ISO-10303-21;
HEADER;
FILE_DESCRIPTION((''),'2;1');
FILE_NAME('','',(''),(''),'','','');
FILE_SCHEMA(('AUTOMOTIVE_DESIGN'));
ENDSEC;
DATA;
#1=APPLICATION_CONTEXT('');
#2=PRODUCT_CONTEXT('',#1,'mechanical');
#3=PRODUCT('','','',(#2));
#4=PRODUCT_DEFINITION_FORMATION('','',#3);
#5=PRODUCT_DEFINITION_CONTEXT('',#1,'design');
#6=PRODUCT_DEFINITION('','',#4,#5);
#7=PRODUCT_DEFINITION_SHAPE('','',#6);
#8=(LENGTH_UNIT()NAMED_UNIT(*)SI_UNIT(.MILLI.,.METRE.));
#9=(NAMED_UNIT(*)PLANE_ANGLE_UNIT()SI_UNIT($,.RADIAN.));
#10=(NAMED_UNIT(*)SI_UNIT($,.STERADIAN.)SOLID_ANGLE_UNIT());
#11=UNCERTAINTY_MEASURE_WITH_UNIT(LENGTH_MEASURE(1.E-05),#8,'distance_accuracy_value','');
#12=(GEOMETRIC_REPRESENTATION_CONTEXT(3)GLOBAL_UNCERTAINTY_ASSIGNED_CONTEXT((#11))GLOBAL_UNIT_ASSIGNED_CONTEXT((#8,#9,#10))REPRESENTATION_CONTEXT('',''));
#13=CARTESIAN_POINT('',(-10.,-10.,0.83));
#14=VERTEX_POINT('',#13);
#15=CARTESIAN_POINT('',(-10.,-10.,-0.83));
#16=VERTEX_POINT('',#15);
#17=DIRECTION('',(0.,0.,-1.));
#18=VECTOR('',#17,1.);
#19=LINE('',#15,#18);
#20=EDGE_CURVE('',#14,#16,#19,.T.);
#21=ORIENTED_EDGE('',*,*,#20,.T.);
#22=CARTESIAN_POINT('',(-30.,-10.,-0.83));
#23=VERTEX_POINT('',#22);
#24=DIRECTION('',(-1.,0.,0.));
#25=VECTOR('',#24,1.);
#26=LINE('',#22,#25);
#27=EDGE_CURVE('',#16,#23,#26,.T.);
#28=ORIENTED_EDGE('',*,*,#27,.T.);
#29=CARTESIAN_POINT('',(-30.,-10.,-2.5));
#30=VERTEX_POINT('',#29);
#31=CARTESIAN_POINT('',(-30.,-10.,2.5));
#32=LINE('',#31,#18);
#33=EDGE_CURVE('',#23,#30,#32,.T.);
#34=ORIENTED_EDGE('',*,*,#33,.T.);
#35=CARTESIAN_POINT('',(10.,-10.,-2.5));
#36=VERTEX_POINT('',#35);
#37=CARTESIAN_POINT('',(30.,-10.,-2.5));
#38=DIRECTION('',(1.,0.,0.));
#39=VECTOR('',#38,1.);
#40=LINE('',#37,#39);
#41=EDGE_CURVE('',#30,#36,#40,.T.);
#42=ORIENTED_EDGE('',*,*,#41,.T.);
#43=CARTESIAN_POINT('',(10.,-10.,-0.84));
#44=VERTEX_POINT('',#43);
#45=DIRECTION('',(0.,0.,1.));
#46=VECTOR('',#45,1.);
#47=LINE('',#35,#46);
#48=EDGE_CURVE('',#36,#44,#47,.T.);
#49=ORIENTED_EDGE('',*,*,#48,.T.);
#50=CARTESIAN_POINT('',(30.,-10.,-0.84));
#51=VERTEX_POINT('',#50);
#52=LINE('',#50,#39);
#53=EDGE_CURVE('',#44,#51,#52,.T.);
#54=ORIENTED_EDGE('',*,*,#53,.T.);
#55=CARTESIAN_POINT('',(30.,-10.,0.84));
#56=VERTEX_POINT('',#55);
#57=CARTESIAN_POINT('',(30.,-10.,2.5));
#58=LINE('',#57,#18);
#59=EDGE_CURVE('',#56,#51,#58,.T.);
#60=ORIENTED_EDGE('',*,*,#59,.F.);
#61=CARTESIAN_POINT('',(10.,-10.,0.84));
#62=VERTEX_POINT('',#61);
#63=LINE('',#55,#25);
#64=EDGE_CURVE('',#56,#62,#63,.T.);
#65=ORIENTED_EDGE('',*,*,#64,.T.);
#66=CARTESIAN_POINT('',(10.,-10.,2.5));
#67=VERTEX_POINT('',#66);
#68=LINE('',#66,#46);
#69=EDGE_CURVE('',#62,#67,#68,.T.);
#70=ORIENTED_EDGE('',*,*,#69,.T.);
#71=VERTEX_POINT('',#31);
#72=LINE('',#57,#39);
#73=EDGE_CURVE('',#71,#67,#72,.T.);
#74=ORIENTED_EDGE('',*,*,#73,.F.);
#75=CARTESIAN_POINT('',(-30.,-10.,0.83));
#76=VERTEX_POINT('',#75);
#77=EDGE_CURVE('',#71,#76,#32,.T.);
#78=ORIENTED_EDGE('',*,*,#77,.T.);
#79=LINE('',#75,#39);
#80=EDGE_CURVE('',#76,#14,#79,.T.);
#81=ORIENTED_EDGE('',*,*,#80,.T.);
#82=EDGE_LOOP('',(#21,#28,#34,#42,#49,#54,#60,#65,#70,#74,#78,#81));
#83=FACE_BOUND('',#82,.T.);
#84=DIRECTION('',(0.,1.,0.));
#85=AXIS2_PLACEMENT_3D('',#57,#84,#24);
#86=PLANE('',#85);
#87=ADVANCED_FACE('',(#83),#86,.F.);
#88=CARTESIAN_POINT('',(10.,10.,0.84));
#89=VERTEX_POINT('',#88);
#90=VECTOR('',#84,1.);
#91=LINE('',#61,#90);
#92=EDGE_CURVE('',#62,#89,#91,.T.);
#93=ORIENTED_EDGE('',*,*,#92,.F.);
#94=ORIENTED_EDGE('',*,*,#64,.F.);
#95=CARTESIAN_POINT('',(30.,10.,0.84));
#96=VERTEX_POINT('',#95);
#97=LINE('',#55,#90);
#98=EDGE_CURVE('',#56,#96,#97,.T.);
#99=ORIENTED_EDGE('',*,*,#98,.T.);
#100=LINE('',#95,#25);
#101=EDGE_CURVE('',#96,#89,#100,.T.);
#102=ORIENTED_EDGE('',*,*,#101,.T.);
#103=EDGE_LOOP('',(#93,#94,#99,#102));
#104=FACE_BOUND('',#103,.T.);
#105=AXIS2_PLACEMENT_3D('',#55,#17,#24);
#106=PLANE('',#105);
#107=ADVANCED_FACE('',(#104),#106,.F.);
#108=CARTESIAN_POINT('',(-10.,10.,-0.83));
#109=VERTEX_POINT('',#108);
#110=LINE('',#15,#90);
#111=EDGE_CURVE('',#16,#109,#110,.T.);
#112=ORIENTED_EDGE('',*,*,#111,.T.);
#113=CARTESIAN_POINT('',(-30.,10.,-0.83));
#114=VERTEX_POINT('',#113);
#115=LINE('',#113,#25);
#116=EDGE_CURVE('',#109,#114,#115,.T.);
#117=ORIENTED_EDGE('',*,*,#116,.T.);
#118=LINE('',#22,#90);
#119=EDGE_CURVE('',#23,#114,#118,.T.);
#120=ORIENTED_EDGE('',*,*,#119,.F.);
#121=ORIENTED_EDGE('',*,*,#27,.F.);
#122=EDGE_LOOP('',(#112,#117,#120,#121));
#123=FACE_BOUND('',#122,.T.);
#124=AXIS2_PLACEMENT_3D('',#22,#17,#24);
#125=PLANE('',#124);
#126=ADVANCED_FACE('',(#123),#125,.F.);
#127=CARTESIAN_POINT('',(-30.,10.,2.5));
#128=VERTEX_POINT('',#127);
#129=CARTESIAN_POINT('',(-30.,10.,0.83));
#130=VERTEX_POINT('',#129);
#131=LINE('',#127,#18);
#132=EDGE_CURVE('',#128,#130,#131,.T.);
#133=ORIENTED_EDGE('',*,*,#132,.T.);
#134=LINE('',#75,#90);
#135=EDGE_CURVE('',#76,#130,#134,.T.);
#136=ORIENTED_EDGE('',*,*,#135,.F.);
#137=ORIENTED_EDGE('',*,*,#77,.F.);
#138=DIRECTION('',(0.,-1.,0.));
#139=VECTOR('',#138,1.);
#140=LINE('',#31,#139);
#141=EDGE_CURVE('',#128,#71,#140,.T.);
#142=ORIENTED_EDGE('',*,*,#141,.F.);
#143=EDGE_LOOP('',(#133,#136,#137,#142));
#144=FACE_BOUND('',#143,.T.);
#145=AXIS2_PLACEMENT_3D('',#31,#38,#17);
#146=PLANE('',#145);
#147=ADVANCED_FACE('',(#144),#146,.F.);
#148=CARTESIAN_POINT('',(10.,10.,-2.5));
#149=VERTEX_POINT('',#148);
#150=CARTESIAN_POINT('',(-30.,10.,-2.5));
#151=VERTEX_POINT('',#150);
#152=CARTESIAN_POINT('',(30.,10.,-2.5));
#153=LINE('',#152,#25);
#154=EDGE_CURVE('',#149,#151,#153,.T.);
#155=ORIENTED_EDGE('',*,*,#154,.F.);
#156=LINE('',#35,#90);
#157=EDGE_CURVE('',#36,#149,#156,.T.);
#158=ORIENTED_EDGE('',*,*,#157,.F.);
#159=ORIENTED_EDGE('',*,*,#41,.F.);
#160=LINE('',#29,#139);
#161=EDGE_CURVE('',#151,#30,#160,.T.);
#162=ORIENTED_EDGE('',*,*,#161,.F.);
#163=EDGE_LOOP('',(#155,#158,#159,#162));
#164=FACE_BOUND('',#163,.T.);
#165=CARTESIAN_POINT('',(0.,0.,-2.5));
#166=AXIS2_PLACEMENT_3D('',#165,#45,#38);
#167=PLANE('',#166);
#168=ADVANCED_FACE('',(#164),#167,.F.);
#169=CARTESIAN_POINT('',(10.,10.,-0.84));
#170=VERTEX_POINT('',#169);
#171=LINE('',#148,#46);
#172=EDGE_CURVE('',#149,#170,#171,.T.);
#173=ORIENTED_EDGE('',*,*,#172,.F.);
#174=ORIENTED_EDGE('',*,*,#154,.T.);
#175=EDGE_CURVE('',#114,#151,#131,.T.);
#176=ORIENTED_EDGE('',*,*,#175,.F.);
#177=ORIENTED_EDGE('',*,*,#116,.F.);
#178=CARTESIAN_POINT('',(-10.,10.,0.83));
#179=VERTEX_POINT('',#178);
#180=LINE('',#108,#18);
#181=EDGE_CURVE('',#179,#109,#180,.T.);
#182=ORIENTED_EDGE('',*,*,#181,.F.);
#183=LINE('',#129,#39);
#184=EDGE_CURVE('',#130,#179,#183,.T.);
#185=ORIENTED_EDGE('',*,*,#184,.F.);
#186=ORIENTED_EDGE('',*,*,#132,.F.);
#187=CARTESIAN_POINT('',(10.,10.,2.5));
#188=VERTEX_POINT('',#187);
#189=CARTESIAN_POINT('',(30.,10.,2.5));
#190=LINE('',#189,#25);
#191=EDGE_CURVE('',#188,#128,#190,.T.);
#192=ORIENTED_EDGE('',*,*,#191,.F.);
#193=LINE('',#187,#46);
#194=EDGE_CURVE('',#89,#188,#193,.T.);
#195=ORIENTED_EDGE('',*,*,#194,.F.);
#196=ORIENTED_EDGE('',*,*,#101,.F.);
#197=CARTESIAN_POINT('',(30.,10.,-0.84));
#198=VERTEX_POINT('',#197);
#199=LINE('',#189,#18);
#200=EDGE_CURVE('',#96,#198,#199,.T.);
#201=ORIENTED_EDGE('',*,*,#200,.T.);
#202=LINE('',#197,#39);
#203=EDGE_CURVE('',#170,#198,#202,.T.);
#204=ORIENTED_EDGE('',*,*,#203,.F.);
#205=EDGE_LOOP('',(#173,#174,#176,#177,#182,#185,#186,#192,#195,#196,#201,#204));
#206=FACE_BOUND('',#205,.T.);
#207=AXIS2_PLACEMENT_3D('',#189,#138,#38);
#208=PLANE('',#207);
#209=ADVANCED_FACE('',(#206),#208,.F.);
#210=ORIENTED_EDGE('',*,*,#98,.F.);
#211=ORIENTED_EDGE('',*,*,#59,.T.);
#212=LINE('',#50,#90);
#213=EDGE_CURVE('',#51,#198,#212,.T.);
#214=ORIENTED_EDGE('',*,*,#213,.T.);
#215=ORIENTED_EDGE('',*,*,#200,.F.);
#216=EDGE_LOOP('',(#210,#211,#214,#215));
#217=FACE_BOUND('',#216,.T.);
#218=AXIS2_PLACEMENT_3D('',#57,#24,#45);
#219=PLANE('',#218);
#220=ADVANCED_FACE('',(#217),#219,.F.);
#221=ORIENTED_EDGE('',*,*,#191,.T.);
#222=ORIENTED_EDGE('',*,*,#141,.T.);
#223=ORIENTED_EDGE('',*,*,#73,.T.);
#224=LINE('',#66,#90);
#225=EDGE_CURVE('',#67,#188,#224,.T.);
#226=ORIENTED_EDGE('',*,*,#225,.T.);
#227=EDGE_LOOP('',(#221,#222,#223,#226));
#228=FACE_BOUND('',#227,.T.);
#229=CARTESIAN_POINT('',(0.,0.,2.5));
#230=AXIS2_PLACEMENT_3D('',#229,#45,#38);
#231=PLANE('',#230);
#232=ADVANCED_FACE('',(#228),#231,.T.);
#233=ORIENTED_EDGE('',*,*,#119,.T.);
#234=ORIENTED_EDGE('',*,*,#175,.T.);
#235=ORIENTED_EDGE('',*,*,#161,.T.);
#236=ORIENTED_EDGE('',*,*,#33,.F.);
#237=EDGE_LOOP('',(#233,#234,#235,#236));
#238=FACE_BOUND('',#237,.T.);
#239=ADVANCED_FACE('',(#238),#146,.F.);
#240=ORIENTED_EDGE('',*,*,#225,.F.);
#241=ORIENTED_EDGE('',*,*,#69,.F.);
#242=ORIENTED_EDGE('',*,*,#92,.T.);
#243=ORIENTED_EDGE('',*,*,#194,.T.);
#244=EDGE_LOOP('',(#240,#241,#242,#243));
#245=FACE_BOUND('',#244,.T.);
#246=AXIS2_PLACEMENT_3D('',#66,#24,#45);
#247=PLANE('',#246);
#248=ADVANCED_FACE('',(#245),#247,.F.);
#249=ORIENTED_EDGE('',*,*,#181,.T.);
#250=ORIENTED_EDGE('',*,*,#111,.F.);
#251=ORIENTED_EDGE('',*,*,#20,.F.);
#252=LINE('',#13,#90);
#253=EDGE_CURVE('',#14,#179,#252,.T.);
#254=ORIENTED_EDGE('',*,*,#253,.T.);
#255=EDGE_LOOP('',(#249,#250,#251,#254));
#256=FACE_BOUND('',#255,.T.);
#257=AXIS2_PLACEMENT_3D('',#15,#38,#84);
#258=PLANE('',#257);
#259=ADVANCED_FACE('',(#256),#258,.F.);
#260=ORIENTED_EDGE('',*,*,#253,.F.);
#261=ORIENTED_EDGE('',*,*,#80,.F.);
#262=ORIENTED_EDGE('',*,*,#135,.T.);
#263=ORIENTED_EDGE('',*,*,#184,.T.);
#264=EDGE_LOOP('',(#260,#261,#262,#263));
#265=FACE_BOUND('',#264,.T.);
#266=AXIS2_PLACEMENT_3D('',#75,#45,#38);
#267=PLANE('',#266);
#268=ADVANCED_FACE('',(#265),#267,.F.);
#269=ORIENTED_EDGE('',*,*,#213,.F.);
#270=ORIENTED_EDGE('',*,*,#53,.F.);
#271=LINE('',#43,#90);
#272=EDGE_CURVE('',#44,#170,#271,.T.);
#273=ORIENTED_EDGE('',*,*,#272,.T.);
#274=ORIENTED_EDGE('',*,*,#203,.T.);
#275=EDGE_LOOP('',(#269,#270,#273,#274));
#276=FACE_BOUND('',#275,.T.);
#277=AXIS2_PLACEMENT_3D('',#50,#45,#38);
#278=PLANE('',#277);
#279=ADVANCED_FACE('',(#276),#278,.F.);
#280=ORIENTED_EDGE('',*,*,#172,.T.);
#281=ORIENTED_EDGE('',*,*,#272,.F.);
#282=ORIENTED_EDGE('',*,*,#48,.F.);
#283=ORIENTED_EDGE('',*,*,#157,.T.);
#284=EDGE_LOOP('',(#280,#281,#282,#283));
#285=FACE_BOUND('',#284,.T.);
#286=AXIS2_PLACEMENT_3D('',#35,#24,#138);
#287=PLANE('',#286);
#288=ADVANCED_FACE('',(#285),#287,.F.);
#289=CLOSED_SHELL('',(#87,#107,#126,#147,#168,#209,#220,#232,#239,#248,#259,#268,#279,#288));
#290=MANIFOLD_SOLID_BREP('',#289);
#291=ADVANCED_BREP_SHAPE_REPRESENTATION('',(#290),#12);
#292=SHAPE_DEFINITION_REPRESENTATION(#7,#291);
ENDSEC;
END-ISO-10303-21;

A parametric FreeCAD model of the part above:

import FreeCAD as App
import Part
import Sketcher
Q = App.Units.Quantity

doc = App.newDocument("Part")
body = doc.addObject("PartDesign::Body", "Body")

# Sketch on XY plane
sketch1 = body.newObject("Sketcher::SketchObject", "Sketch")
sketch1.AttachmentSupport = (doc.getObject("XY_Plane"), [""])
sketch1.MapMode = "FlatFace"
sketch1.addGeometry(Part.LineSegment(App.Vector(-30, 10, 0), App.Vector(-30, -10, 0)), False)
sketch1.addGeometry(Part.LineSegment(App.Vector(-30, -10, 0), App.Vector(30, -10, 0)), False)
sketch1.addGeometry(Part.LineSegment(App.Vector(30, -10, 0), App.Vector(30, 10, 0)), False)
sketch1.addGeometry(Part.LineSegment(App.Vector(30, 10, 0), App.Vector(-30, 10, 0)), False)
sketch1.addConstraint(Sketcher.Constraint("Coincident", 0, 2, 1, 1))
sketch1.addConstraint(Sketcher.Constraint("Coincident", 1, 2, 2, 1))
sketch1.addConstraint(Sketcher.Constraint("Coincident", 2, 2, 3, 1))
sketch1.addConstraint(Sketcher.Constraint("Coincident", 3, 2, 0, 1))
sketch1.addConstraint(Sketcher.Constraint("Vertical", 0))
sketch1.addConstraint(Sketcher.Constraint("Horizontal", 1))
sketch1.addConstraint(Sketcher.Constraint("Vertical", 2))
sketch1.addConstraint(Sketcher.Constraint("Horizontal", 3))
sketch1.addConstraint(Sketcher.Constraint("Symmetric", 0, 2, 2, 2, -1, 1))
sketch1.addConstraint(Sketcher.Constraint("DistanceX", 1, 1, 1, 2, Q("60 mm")))
sketch1.addConstraint(Sketcher.Constraint("DistanceY", 0, 2, 0, 1, Q("20 mm")))
pad1 = body.newObject("PartDesign::Pad", "Pad")
pad1.Profile = sketch1
pad1.Length = 5
pad1.Midplane = True

# Sketch on XZ plane
sketch2 = body.newObject("Sketcher::SketchObject", "Sketch001")
sketch2.AttachmentSupport = (doc.getObject("XZ_Plane"), [""])
sketch2.MapMode = "FlatFace"
sketch2.AttachmentOffset = App.Placement(App.Vector(0, 0, -10), App.Rotation())
sketch2.addGeometry(Part.LineSegment(App.Vector(-30, -0.8, 0), App.Vector(-30, 0.8, 0)), False)
sketch2.addGeometry(Part.LineSegment(App.Vector(-30, 0.8, 0), App.Vector(-10, 0.8, 0)), False)
sketch2.addGeometry(Part.LineSegment(App.Vector(-10, 0.8, 0), App.Vector(-10, -0.8, 0)), False)
sketch2.addGeometry(Part.LineSegment(App.Vector(-10, -0.8, 0), App.Vector(-30, -0.8, 0)), False)
sketch2.addGeometry(Part.LineSegment(App.Vector(10, -2.5, 0), App.Vector(10, -0.8, 0)), False)
sketch2.addGeometry(Part.LineSegment(App.Vector(10, -0.8, 0), App.Vector(30, -0.8, 0)), False)
sketch2.addGeometry(Part.LineSegment(App.Vector(30, -0.8, 0), App.Vector(30, -2.5, 0)), False)
sketch2.addGeometry(Part.LineSegment(App.Vector(30, -2.5, 0), App.Vector(10, -2.5, 0)), False)
sketch2.addGeometry(Part.LineSegment(App.Vector(10, 0.8, 0), App.Vector(10, 2.5, 0)), False)
sketch2.addGeometry(Part.LineSegment(App.Vector(10, 2.5, 0), App.Vector(30, 2.5, 0)), False)
sketch2.addGeometry(Part.LineSegment(App.Vector(30, 2.5, 0), App.Vector(30, 0.8, 0)), False)
sketch2.addGeometry(Part.LineSegment(App.Vector(30, 0.8, 0), App.Vector(10, 0.8, 0)), False)
sketch2.addConstraint(Sketcher.Constraint("Coincident", 0, 2, 1, 1))
sketch2.addConstraint(Sketcher.Constraint("Coincident", 1, 2, 2, 1))
sketch2.addConstraint(Sketcher.Constraint("Coincident", 2, 2, 3, 1))
sketch2.addConstraint(Sketcher.Constraint("Coincident", 3, 2, 0, 1))
sketch2.addConstraint(Sketcher.Constraint("Coincident", 4, 2, 5, 1))
sketch2.addConstraint(Sketcher.Constraint("Coincident", 5, 2, 6, 1))
sketch2.addConstraint(Sketcher.Constraint("Coincident", 6, 2, 7, 1))
sketch2.addConstraint(Sketcher.Constraint("Coincident", 7, 2, 4, 1))
sketch2.addConstraint(Sketcher.Constraint("Coincident", 8, 2, 9, 1))
sketch2.addConstraint(Sketcher.Constraint("Coincident", 9, 2, 10, 1))
sketch2.addConstraint(Sketcher.Constraint("Coincident", 10, 2, 11, 1))
sketch2.addConstraint(Sketcher.Constraint("Coincident", 11, 2, 8, 1))
sketch2.addConstraint(Sketcher.Constraint("Vertical", 0))
sketch2.addConstraint(Sketcher.Constraint("Horizontal", 1))
sketch2.addConstraint(Sketcher.Constraint("Vertical", 2))
sketch2.addConstraint(Sketcher.Constraint("Horizontal", 3))
sketch2.addConstraint(Sketcher.Constraint("Vertical", 4))
sketch2.addConstraint(Sketcher.Constraint("Horizontal", 5))
sketch2.addConstraint(Sketcher.Constraint("Vertical", 6))
sketch2.addConstraint(Sketcher.Constraint("Horizontal", 7))
sketch2.addConstraint(Sketcher.Constraint("Vertical", 8))
sketch2.addConstraint(Sketcher.Constraint("Horizontal", 9))
sketch2.addConstraint(Sketcher.Constraint("Vertical", 10))
sketch2.addConstraint(Sketcher.Constraint("Horizontal", 11))
sketch2.addConstraint(Sketcher.Constraint("Symmetric", 7, 2, 8, 2, -1))
sketch2.addConstraint(Sketcher.Constraint("Symmetric", 5, 2, 10, 2, -1))
sketch2.addConstraint(Sketcher.Constraint("Equal", 3, 5))
sketch2.addConstraint(Sketcher.Constraint("Equal", 2, 4))
sketch2.addConstraint(Sketcher.Constraint("DistanceX", 1, 1, 1, 2, Q("20 mm")))
sketch2.addConstraint(Sketcher.Constraint("DistanceX", 0, 2, -1, 1, Q("30 mm")))
sketch2.addConstraint(Sketcher.Constraint("DistanceX", -1, 1, 4, 2, Q("10 mm")))
sketch2.addConstraint(Sketcher.Constraint("DistanceY", 7, 2, 8, 2, Q("5 mm")))
sketch2.addConstraint(Sketcher.Constraint("DistanceY", 0, 1, 0, 2, Q("1.66 mm")))
sketch2.addConstraint(Sketcher.Constraint("DistanceY", -1, 1, 0, 2, Q("0.83 mm")))
pocket1 = body.newObject("PartDesign::Pocket", "Pocket")
pocket1.Profile = sketch2
pocket1.Type = "ThroughAll"
pocket1.Reversed = True

doc.recompute()
